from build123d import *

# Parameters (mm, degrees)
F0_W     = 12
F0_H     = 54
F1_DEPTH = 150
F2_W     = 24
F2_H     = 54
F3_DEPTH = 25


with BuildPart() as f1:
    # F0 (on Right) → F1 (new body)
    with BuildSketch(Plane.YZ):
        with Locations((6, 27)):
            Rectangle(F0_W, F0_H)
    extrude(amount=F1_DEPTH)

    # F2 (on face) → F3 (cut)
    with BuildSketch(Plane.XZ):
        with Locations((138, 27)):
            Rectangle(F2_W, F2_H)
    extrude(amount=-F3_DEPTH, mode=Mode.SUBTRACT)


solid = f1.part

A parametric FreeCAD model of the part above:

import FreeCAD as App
import Part
import Sketcher

V = App.Vector
Q = App.Units.Quantity


def add_polygon(sketch, points):
    """Adds a closed chain of lines whose ends are joined by coincident constraints."""
    first, n = sketch.GeometryCount, len(points)
    for a, b in zip(points, points[1:] + points[:1]):
        sketch.addGeometry(Part.LineSegment(App.Vector(*a, 0), App.Vector(*b, 0)), False)
    for i in range(n):
        sketch.addConstraint(Sketcher.Constraint("Coincident", first + i, 2, first + (i + 1) % n, 1))

doc = App.newDocument("Part")
body = doc.addObject("PartDesign::Body", "Body")

sketch1 = doc.addObject("Sketcher::SketchObject", "Sketch")
body.addObject(sketch1)
sketch1.AttachmentSupport = (doc.YZ_Plane, [""])
sketch1.MapMode = "FlatFace"
add_polygon(sketch1, [(0, 54), (0, 0), (12, 0), (12, 54)])
sketch1.addConstraint([
    Sketcher.Constraint("Vertical", 0),
    Sketcher.Constraint("Horizontal", 1),
    Sketcher.Constraint("Vertical", 2),
    Sketcher.Constraint("Horizontal", 3),
    Sketcher.Constraint("Coincident", 0, 2, -1, 1),
    Sketcher.Constraint("DistanceX", 1, 1, 1, 2, Q("12 mm")),
    Sketcher.Constraint("DistanceY", 0, 2, 0, 1, Q("54 mm")),
])
pad1 = doc.addObject("PartDesign::Pad", "Pad")
body.addObject(pad1)
pad1.Profile = sketch1
pad1.Length = 150

sketch2 = doc.addObject("Sketcher::SketchObject", "Sketch001")
body.addObject(sketch2)
sketch2.AttachmentSupport = (doc.XZ_Plane, [""])
sketch2.MapMode = "FlatFace"
add_polygon(sketch2, [(126, 54), (126, 0), (150, 0), (150, 54)])
sketch2.addConstraint([
    Sketcher.Constraint("Vertical", 0),
    Sketcher.Constraint("Horizontal", 1),
    Sketcher.Constraint("Vertical", 2),
    Sketcher.Constraint("Horizontal", 3),
    Sketcher.Constraint("PointOnObject", 0, 2, -1),
    Sketcher.Constraint("DistanceX", 1, 1, 1, 2, Q("24 mm")),
    Sketcher.Constraint("DistanceY", 0, 2, 0, 1, Q("54 mm")),
    Sketcher.Constraint("DistanceX", -1, 1, 0, 2, Q("126 mm")),
])
pocket1 = doc.addObject("PartDesign::Pocket", "Pocket")
body.addObject(pocket1)
pocket1.Profile = sketch2
pocket1.Length = 25

doc.recompute()
